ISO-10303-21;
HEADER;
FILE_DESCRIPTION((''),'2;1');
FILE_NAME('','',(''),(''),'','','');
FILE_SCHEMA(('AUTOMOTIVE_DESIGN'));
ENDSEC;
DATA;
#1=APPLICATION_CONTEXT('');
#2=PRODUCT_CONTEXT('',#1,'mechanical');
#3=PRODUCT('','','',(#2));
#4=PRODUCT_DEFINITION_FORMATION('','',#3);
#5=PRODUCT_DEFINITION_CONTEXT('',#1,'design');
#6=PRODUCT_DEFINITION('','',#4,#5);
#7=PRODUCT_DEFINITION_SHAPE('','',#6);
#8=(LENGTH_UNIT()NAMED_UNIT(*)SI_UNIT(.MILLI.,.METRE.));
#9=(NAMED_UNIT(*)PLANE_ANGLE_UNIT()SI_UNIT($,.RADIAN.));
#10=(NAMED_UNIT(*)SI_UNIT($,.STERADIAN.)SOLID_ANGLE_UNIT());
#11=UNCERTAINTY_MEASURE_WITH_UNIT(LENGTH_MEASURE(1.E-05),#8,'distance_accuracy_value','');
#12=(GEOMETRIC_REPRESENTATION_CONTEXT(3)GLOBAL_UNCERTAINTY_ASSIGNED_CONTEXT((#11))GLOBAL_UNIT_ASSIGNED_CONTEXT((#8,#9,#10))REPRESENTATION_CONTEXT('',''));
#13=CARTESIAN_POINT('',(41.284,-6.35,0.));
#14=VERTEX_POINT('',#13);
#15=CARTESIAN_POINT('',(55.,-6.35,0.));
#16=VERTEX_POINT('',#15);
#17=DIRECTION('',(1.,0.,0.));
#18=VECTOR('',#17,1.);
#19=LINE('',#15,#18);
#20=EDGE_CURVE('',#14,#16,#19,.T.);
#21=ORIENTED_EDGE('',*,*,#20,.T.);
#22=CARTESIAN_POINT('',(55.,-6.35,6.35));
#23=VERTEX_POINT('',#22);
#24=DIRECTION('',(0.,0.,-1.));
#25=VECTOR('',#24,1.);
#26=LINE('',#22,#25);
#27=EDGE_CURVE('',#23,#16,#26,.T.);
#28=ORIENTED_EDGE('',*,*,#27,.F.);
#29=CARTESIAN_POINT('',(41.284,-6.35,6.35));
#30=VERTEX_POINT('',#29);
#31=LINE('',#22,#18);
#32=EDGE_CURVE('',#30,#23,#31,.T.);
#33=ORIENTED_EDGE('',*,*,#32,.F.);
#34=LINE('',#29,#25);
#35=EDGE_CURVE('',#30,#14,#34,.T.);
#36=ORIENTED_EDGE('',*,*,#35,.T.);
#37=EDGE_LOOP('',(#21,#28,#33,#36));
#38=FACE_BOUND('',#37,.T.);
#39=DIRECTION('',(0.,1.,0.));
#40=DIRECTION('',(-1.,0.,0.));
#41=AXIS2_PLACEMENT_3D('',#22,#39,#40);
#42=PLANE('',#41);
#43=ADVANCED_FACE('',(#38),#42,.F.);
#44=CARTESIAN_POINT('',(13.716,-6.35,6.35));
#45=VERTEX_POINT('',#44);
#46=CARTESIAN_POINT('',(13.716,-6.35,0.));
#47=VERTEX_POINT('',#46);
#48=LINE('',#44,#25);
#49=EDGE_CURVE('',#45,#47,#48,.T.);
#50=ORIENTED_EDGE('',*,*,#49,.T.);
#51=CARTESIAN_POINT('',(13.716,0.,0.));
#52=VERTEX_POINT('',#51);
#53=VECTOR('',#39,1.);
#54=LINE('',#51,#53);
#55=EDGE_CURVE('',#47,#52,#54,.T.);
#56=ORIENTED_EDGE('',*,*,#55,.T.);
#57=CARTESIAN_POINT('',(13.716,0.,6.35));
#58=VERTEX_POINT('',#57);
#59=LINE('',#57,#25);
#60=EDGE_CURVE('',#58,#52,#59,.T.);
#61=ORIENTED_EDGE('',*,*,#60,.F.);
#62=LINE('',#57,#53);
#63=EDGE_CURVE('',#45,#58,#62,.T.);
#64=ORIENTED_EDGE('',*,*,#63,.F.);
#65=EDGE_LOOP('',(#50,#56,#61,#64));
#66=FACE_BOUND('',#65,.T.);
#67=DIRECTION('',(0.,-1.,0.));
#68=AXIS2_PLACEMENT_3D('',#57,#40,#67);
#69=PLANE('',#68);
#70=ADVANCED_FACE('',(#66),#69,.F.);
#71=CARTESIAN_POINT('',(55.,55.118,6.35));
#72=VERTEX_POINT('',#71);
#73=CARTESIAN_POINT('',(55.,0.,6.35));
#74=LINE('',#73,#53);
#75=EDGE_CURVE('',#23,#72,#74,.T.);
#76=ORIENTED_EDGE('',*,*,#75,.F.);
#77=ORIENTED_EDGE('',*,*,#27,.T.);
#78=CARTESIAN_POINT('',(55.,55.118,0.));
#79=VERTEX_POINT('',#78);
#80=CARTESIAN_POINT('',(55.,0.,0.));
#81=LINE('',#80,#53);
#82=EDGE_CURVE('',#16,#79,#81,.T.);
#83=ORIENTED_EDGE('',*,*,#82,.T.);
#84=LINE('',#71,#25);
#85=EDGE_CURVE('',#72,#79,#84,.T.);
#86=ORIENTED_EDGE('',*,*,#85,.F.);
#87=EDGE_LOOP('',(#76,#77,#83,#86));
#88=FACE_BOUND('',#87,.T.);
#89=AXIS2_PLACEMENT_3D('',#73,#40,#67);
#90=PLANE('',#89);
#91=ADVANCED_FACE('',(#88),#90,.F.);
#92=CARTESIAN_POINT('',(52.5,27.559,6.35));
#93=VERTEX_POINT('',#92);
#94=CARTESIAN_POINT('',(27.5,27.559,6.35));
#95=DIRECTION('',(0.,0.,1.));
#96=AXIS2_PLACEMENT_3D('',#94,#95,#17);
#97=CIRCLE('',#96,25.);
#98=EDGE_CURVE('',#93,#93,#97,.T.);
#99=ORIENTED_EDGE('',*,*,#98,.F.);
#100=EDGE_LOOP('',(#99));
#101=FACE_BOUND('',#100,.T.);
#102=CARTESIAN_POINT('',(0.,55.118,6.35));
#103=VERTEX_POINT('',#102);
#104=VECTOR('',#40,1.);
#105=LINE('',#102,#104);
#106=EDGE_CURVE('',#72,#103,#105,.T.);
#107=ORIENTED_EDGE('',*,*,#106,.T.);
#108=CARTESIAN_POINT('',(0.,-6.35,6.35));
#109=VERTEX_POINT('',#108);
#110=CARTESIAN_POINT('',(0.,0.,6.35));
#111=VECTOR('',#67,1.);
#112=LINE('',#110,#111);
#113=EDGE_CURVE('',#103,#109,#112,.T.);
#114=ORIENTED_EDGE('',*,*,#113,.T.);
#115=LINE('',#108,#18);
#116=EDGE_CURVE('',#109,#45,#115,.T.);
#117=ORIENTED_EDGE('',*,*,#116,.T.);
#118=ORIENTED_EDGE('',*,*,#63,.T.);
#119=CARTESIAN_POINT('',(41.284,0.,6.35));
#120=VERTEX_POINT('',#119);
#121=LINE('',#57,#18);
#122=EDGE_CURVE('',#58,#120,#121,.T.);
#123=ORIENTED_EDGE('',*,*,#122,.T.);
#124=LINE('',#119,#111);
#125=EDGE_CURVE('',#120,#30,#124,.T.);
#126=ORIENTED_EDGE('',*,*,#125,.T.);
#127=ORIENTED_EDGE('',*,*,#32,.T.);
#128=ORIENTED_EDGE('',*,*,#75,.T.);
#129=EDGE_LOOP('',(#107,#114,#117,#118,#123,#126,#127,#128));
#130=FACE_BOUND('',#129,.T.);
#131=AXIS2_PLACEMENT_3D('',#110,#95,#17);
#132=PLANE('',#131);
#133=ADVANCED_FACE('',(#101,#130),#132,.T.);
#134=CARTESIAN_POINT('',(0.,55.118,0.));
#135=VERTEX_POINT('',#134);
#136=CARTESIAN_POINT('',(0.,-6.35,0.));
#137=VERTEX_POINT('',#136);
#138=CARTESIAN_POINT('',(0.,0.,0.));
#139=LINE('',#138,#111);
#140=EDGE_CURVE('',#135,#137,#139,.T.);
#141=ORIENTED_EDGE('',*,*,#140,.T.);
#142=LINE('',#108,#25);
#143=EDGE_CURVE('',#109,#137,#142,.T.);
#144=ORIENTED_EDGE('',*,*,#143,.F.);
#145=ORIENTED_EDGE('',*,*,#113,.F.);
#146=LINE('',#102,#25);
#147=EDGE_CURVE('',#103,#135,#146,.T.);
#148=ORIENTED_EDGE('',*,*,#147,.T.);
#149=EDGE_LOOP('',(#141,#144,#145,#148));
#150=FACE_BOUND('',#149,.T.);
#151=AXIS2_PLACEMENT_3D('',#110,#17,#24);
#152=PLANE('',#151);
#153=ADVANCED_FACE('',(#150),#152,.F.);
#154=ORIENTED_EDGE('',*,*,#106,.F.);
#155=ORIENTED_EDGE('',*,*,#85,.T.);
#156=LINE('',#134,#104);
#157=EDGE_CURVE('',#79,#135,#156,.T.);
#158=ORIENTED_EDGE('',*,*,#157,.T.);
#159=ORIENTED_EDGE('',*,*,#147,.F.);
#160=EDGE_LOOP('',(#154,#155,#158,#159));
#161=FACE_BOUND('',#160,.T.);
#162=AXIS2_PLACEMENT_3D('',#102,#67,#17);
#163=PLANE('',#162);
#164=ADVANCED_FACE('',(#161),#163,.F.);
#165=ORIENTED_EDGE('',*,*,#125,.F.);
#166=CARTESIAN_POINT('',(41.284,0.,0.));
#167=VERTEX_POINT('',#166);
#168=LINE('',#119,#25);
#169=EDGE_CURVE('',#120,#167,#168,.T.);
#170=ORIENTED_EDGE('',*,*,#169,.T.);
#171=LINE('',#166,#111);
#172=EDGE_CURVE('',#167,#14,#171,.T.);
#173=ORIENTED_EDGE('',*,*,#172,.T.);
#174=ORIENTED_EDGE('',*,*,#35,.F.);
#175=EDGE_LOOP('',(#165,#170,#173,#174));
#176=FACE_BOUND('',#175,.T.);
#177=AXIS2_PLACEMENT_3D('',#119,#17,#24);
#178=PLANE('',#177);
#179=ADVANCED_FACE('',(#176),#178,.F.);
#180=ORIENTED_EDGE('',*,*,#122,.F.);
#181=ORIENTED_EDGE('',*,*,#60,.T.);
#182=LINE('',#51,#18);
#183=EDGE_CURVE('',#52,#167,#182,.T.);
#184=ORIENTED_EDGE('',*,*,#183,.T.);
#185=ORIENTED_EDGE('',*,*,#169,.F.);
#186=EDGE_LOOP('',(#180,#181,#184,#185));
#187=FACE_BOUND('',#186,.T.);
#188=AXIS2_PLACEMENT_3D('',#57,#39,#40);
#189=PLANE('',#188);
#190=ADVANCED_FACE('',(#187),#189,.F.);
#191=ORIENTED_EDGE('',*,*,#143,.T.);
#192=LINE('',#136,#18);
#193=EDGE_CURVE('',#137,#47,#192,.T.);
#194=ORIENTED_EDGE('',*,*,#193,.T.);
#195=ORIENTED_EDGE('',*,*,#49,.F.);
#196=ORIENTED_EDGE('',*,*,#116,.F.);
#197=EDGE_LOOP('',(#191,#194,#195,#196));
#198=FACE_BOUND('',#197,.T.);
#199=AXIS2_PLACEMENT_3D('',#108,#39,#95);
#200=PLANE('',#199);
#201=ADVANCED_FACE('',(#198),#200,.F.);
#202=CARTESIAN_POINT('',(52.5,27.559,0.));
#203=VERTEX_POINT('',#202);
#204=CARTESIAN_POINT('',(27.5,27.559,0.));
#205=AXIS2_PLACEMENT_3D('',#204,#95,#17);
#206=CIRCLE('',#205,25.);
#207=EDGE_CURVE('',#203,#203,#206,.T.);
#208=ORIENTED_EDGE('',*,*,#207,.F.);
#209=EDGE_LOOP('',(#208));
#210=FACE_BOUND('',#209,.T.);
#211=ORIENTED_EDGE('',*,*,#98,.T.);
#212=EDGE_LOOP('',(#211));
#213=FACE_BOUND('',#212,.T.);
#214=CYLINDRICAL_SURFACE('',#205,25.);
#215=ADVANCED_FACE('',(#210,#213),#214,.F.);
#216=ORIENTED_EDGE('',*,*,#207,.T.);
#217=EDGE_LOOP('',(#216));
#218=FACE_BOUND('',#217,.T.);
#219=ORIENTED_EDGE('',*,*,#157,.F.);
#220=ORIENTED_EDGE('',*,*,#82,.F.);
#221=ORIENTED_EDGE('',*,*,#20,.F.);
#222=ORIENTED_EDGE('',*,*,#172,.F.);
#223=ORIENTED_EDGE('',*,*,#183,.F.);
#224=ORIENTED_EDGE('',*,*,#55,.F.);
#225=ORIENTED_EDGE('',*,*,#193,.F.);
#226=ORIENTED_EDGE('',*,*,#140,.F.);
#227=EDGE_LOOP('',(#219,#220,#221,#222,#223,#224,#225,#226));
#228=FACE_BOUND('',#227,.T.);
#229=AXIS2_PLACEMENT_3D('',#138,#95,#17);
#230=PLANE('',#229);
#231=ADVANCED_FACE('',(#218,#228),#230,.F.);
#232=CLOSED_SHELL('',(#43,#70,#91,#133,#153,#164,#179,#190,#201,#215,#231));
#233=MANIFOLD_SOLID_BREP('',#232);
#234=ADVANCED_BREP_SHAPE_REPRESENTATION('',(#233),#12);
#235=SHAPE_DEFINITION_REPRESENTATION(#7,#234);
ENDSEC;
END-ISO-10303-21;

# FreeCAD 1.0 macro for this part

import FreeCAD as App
import Part
import Sketcher

V = App.Vector
Q = App.Units.Quantity


def add_polygon(sketch, points):
    """Adds a closed chain of lines whose ends are joined by coincident constraints."""
    first, n = sketch.GeometryCount, len(points)
    for a, b in zip(points, points[1:] + points[:1]):
        sketch.addGeometry(Part.LineSegment(App.Vector(*a, 0), App.Vector(*b, 0)), False)
    for i in range(n):
        sketch.addConstraint(Sketcher.Constraint("Coincident", first + i, 2, first + (i + 1) % n, 1))

doc = App.newDocument("Part")
body = doc.addObject("PartDesign::Body", "Body")

# Sketch on XY plane
sketch1 = body.newObject("Sketcher::SketchObject", "Sketch")
sketch1.AttachmentSupport = (doc.getObject("XY_Plane"), [""])
sketch1.MapMode = "FlatFace"
add_polygon(sketch1, [(14, 0), (41, 0), (41, -6), (55, -6), (55, 55), (0, 55), (0, -6), (14, -6)])  # lines 0-7
sketch1.addConstraint(Sketcher.Constraint("Horizontal", 0))
sketch1.addConstraint(Sketcher.Constraint("Vertical", 1))
sketch1.addConstraint(Sketcher.Constraint("Horizontal", 2))
sketch1.addConstraint(Sketcher.Constraint("Vertical", 3))
sketch1.addConstraint(Sketcher.Constraint("Horizontal", 4))
sketch1.addConstraint(Sketcher.Constraint("Vertical", 5))
sketch1.addConstraint(Sketcher.Constraint("Horizontal", 6))
sketch1.addConstraint(Sketcher.Constraint("Vertical", 7))
sketch1.addConstraint(Sketcher.Constraint("PointOnObject", 0, 2, -1))
sketch1.addConstraint(Sketcher.Constraint("PointOnObject", 4, 2, -2))
sketch1.addConstraint(Sketcher.Constraint("Horizontal", 2, 2, 5, 2))
sketch1.addConstraint(Sketcher.Constraint("Equal", 2, 6))
sketch1.addConstraint(Sketcher.Constraint("DistanceX", 2, 1, 2, 2, Q("0.54 in")))
sketch1.addConstraint(Sketcher.Constraint("DistanceY", 1, 2, 1, 1, Q("0.25 in")))
sketch1.addConstraint(Sketcher.Constraint("DistanceY", 3, 1, 3, 2, Q("2.42 in")))
sketch1.addConstraint(Sketcher.Constraint("DistanceX", 0, 1, 0, 2, Q("27.568 mm")))
pad1 = body.newObject("PartDesign::Pad", "Pad")
pad1.Profile = sketch1
pad1.Length = Q("0.25 in")

# Sketch on XY plane
sketch2 = body.newObject("Sketcher::SketchObject", "Sketch001")
sketch2.AttachmentSupport = (doc.getObject("XY_Plane"), [""])
sketch2.MapMode = "FlatFace"
sketch2.AttachmentOffset = App.Placement(V(0, 0, 0.25 * 25.4), App.Rotation())
sketch2.addGeometry(Part.Circle(V(27, 28, 0), V(0, 0, 1), 25), False)
sketch2.addConstraint(Sketcher.Constraint("Diameter", 0, Q("50 mm")))
sketch2.addConstraint(Sketcher.Constraint("DistanceY", -1, 1, 0, 3, Q("1.085 in")))
sketch2.addConstraint(Sketcher.Constraint("DistanceX", -1, 1, 0, 3, Q("27.5 mm")))
pocket1 = body.newObject("PartDesign::Pocket", "Pocket")
pocket1.Profile = sketch2
pocket1.Type = "ThroughAll"
pocket1.Midplane = True

doc.recompute()
